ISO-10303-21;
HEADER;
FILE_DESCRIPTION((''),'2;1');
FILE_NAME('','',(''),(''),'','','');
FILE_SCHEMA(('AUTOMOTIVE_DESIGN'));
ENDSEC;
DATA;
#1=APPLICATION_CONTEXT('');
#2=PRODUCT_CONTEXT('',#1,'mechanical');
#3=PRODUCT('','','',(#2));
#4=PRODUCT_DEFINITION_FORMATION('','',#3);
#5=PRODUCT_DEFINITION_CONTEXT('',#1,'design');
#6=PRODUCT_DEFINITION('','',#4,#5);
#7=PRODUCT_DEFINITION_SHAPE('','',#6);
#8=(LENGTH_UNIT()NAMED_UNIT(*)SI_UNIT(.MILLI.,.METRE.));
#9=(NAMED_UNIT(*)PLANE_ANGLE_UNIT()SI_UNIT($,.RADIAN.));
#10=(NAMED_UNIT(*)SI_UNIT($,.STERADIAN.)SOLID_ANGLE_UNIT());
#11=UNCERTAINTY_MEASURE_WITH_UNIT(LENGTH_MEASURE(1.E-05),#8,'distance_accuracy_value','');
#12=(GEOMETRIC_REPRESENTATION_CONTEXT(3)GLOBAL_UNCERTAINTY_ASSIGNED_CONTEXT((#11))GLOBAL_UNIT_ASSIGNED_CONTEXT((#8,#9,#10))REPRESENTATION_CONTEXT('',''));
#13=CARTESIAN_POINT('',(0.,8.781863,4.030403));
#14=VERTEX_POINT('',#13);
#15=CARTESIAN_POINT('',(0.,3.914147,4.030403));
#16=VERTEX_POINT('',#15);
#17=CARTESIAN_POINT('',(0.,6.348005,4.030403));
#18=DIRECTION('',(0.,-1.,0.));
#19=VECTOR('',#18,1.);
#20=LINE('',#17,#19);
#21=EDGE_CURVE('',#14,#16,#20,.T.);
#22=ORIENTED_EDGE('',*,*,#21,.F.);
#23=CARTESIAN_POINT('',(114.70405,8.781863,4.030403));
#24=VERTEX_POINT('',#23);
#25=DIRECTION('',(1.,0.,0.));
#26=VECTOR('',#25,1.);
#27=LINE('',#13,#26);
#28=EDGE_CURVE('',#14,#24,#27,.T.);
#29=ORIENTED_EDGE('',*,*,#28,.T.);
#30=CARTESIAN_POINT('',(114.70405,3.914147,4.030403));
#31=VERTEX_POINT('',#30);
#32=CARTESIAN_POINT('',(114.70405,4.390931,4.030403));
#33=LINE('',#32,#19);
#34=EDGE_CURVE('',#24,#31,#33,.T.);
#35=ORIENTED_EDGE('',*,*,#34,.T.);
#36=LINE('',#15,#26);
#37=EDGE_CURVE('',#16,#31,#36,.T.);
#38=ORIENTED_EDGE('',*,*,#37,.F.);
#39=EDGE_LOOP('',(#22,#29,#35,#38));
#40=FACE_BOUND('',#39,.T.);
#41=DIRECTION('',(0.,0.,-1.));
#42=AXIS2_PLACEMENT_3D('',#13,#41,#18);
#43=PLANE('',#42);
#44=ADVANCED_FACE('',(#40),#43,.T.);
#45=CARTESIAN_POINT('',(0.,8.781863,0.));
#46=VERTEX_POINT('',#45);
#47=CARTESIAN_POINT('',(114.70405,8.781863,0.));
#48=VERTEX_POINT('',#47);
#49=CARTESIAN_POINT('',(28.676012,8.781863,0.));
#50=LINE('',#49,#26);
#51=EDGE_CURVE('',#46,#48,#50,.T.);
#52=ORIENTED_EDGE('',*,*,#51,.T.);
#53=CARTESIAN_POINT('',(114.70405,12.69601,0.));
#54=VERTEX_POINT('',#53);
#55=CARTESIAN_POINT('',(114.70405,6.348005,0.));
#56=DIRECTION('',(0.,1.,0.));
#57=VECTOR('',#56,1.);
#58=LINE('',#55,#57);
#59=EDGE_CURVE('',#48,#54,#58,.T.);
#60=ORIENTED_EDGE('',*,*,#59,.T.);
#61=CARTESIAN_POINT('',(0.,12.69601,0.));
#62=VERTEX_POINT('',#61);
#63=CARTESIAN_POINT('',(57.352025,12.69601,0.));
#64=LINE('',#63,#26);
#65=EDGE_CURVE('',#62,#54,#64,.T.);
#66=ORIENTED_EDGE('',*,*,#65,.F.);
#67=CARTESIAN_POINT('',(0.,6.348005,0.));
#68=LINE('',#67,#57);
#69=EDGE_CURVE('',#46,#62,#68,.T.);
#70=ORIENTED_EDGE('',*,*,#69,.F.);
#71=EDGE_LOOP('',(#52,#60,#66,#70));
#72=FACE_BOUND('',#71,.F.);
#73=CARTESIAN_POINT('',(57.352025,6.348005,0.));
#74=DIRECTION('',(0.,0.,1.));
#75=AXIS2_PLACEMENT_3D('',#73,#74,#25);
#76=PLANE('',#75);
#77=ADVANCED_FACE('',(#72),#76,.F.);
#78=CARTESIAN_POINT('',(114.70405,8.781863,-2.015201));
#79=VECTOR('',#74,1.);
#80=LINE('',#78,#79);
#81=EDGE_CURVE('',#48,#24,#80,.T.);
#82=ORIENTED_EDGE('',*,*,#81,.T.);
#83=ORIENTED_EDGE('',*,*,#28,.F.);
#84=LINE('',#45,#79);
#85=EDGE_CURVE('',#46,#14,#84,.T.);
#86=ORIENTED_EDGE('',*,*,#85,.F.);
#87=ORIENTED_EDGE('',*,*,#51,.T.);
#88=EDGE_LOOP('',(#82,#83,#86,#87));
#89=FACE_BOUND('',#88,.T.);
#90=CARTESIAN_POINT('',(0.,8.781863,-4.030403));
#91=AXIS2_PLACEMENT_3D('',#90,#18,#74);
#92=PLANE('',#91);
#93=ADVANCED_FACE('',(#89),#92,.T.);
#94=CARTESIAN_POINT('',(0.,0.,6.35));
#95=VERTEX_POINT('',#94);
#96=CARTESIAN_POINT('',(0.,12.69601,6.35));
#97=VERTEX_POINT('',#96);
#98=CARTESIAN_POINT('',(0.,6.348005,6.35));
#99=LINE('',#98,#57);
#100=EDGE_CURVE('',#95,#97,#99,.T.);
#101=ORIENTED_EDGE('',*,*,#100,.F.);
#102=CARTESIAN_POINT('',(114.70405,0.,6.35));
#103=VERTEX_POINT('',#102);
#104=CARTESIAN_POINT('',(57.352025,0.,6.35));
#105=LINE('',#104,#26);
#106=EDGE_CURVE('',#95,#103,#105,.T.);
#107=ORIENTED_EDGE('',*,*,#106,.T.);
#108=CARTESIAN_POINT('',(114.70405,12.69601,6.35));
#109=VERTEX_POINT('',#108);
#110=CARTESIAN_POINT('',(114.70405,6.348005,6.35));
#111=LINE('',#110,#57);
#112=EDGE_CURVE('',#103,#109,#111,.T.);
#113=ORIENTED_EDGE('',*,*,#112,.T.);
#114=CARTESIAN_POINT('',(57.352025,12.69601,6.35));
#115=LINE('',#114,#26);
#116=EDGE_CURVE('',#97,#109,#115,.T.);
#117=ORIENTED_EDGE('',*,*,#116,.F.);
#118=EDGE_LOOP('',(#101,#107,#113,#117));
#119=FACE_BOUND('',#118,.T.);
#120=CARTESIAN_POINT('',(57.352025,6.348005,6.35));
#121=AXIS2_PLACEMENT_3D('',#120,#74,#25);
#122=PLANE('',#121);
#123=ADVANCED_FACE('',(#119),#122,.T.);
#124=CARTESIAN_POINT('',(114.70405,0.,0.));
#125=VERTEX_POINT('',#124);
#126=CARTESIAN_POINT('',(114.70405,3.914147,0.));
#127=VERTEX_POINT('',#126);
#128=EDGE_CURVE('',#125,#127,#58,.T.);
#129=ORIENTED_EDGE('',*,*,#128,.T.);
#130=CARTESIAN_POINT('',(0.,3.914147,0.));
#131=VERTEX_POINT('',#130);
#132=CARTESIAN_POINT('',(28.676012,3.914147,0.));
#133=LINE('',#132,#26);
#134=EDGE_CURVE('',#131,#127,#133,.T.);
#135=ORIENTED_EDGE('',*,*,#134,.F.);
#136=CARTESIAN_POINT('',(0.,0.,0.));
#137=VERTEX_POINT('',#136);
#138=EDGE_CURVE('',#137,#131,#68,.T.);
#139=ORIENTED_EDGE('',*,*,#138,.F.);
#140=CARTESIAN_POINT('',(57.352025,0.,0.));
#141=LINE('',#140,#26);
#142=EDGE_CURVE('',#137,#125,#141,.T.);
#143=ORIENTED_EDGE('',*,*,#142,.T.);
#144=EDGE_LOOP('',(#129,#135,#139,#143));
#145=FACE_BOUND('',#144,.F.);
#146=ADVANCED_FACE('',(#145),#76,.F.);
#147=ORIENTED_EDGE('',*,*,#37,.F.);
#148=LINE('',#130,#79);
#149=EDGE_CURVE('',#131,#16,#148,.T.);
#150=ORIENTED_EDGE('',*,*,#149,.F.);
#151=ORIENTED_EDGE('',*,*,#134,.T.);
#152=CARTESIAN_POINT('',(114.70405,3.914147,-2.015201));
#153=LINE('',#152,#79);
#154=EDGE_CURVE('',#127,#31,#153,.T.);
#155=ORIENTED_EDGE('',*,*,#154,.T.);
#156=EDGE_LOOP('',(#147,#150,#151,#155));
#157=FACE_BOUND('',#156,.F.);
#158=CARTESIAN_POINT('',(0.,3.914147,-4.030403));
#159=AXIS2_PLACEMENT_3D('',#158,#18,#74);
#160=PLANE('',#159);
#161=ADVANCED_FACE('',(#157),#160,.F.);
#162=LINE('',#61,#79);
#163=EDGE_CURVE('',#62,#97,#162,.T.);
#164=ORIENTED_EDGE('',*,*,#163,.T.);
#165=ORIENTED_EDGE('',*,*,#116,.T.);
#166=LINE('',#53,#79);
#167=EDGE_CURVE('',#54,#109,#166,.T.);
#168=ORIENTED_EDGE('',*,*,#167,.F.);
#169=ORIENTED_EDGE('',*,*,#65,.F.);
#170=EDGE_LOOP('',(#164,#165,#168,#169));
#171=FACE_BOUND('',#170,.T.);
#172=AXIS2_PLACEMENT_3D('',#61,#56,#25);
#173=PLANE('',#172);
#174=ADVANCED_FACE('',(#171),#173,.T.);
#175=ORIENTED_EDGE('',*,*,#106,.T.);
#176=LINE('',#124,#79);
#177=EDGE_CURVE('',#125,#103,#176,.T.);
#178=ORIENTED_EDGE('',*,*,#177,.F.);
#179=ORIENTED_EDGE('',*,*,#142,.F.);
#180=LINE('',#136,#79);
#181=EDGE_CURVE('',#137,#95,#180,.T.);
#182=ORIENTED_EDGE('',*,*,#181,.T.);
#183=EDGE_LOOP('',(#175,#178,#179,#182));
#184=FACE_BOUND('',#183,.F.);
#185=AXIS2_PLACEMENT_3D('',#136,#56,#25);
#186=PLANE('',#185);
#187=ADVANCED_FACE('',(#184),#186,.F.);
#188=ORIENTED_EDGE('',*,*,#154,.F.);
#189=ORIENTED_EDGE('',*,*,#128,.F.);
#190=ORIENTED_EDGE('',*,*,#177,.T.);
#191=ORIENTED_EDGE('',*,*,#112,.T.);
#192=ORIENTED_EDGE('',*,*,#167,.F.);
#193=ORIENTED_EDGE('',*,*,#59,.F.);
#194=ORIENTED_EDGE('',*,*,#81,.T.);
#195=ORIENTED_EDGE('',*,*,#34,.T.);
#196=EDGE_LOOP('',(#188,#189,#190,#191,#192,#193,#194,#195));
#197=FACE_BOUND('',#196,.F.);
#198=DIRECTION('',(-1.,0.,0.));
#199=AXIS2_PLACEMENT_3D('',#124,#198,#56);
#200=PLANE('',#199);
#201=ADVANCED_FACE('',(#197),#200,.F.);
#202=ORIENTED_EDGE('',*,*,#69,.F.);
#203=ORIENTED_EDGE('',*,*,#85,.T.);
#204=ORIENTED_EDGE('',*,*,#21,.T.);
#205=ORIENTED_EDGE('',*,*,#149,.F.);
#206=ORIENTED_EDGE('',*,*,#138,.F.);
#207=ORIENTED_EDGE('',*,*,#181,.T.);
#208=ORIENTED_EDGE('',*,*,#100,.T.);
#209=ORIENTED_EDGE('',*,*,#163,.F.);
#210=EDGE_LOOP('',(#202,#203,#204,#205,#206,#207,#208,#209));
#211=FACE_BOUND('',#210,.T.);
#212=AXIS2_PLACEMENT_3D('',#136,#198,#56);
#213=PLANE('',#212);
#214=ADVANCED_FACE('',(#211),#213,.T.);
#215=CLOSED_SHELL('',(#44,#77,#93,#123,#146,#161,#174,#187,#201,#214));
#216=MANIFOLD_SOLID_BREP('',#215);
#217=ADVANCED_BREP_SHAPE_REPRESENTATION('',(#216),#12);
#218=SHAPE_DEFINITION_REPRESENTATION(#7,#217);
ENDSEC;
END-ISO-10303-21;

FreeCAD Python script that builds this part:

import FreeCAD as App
import Part
import Sketcher

V = App.Vector
Q = App.Units.Quantity

doc = App.newDocument("Part")
body = doc.addObject("PartDesign::Body", "Body")

sketch1 = body.newObject("Sketcher::SketchObject", "Sketch")
sketch1.AttachmentSupport = (doc.getObject("XY_Plane"), [""])
sketch1.MapMode = "FlatFace"
sketch1.addGeometry([
    Part.LineSegment(V(0, 13, 0), V(0, 0, 0)),
    Part.LineSegment(V(0, 0, 0), V(115, 0, 0)),
    Part.LineSegment(V(115, 0, 0), V(115, 13, 0)),
    Part.LineSegment(V(115, 13, 0), V(0, 13, 0)),
], False)
sketch1.addConstraint([
    Sketcher.Constraint("Coincident", 0, 2, 1, 1),
    Sketcher.Constraint("Coincident", 1, 2, 2, 1),
    Sketcher.Constraint("Coincident", 2, 2, 3, 1),
    Sketcher.Constraint("Coincident", 3, 2, 0, 1),
    Sketcher.Constraint("Vertical", 0),
    Sketcher.Constraint("Horizontal", 1),
    Sketcher.Constraint("Vertical", 2),
    Sketcher.Constraint("Horizontal", 3),
    Sketcher.Constraint("Coincident", 0, 2, -1, 1),
    Sketcher.Constraint("DistanceX", 1, 1, 1, 2, Q("114.70405 mm")),
    Sketcher.Constraint("DistanceY", 0, 2, 0, 1, Q("12.69601 mm")),
])
pad1 = body.newObject("PartDesign::Pad", "Pad")
pad1.Profile = sketch1
pad1.Length = Q("0.25 in")

sketch2 = body.newObject("Sketcher::SketchObject", "Sketch001")
sketch2.AttachmentSupport = (doc.getObject("YZ_Plane"), [""])
sketch2.MapMode = "FlatFace"
sketch2.addGeometry([
    Part.LineSegment(V(8.8, 4, 0), V(8.8, -4, 0)),
    Part.LineSegment(V(8.8, -4, 0), V(3.9, -4, 0)),
    Part.LineSegment(V(3.9, -4, 0), V(3.9, 4, 0)),
    Part.LineSegment(V(3.9, 4, 0), V(8.8, 4, 0)),
], False)
sketch2.addConstraint([
    Sketcher.Constraint("Coincident", 0, 2, 1, 1),
    Sketcher.Constraint("Coincident", 1, 2, 2, 1),
    Sketcher.Constraint("Coincident", 2, 2, 3, 1),
    Sketcher.Constraint("Coincident", 3, 2, 0, 1),
    Sketcher.Constraint("Vertical", 0),
    Sketcher.Constraint("Horizontal", 1),
    Sketcher.Constraint("Vertical", 2),
    Sketcher.Constraint("Horizontal", 3),
    Sketcher.Constraint("DistanceX", 1, 2, 1, 1, Q("4.867716 mm")),
    Sketcher.Constraint("DistanceY", 0, 2, 0, 1, Q("8.060806 mm")),
    Sketcher.Constraint("DistanceX", -1, 1, 0, 2, Q("8.781863 mm")),
    Sketcher.Constraint("DistanceY", 0, 2, -1, 1, Q("4.030403 mm")),
])
pocket1 = body.newObject("PartDesign::Pocket", "Pocket")
pocket1.Profile = sketch2
pocket1.Type = "ThroughAll"
pocket1.Reversed = True

doc.recompute()
